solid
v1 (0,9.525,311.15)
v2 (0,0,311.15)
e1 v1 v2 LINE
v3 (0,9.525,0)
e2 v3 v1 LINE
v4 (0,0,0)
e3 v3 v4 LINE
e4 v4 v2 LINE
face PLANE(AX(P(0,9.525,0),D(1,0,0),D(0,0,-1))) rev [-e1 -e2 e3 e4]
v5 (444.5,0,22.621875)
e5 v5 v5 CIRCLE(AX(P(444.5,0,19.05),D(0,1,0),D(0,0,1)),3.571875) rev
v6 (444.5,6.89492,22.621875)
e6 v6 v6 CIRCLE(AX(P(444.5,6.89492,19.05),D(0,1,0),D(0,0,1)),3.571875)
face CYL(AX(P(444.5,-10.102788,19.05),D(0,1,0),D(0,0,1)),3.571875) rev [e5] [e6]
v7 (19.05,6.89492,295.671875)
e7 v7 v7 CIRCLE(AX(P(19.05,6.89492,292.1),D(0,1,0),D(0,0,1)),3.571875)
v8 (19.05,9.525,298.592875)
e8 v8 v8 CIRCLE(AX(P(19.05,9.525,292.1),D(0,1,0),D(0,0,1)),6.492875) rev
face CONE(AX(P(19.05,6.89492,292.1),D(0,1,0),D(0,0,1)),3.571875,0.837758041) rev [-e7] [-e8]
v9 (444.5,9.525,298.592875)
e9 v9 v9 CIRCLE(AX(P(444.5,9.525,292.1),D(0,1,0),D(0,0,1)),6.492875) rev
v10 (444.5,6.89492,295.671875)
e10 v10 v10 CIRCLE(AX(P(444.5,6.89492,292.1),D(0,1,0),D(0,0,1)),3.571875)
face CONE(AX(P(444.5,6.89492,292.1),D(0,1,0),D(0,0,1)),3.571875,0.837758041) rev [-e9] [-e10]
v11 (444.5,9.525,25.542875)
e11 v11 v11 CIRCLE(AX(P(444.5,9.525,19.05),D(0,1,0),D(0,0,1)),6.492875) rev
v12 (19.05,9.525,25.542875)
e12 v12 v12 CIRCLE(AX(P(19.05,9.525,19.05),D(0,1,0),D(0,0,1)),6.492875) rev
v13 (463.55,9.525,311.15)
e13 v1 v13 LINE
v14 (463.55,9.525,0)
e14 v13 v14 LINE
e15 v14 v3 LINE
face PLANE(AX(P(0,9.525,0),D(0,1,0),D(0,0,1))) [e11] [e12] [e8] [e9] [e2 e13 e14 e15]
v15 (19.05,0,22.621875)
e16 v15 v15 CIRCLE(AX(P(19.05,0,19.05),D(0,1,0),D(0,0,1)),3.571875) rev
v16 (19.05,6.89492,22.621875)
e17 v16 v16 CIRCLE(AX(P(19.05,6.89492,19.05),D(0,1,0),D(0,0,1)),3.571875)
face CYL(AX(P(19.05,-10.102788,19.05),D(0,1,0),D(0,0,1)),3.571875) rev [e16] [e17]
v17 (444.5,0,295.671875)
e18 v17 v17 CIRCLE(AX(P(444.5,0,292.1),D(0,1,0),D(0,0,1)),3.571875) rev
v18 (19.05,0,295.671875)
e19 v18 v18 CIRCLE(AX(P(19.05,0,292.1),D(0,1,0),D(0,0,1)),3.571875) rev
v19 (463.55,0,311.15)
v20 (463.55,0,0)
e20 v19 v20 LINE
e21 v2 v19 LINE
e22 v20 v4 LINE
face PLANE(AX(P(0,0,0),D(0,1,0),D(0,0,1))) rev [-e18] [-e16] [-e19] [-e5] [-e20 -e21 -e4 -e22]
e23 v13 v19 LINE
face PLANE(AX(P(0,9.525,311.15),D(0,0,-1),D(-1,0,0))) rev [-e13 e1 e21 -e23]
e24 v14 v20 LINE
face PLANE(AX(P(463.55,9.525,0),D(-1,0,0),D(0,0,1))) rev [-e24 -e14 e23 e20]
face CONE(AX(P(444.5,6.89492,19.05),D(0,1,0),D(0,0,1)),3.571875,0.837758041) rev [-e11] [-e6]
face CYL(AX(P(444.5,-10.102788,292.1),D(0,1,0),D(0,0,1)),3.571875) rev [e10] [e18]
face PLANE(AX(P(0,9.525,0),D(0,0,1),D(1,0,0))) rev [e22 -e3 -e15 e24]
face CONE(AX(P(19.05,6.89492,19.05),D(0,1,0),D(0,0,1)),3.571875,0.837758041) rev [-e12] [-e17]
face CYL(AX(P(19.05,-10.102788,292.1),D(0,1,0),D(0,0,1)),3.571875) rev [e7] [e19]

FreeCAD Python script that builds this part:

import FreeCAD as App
import Part
import Sketcher
from FreeCAD import Vector
Q = App.Units.Quantity


def edges_at(feature, points):
    """Names of the edges that pass closest to the given points."""
    edges = feature.Shape.Edges
    near = lambda p: min(range(len(edges)), key=lambda i: edges[i].distToShape(Part.Vertex(*p))[0])
    return sorted({f"Edge{near(p) + 1}" for p in points})


def add_polygon(sketch, points):
    """Adds a closed chain of lines whose ends are joined by coincident constraints."""
    first, n = sketch.GeometryCount, len(points)
    for a, b in zip(points, points[1:] + points[:1]):
        sketch.addGeometry(Part.LineSegment(App.Vector(*a, 0), App.Vector(*b, 0)), False)
    for i in range(n):
        sketch.addConstraint(Sketcher.Constraint("Coincident", first + i, 2, first + (i + 1) % n, 1))

doc = App.newDocument("Part")
body = doc.addObject("PartDesign::Body", "Body")

sketch1 = body.newObject("Sketcher::SketchObject", "Sketch")
sketch1.AttachmentSupport = (doc.getObject("XZ_Plane"), [""])
sketch1.MapMode = "FlatFace"
add_polygon(sketch1, [(0, 0), (0, 311.15), (463.55, 311.15), (463.55, 0)])
sketch1.addConstraint([
    Sketcher.Constraint("Vertical", 0),
    Sketcher.Constraint("Horizontal", 1),
    Sketcher.Constraint("Vertical", 2),
    Sketcher.Constraint("Horizontal", 3),
    Sketcher.Constraint("Coincident", 3, 2, -1, 1),
    Sketcher.Constraint("DistanceX", 1, 1, 1, 2, Q("18.25 in")),
    Sketcher.Constraint("DistanceY", 0, 1, 0, 2, Q("12.25 in")),
])
pad1 = body.newObject("PartDesign::Pad", "Pad")
pad1.Profile = sketch1
pad1.Length = Q("0.375 in")
pad1.Reversed = True

sketch2 = body.newObject("Sketcher::SketchObject", "Sketch001")
sketch2.AttachmentSupport = (doc.getObject("XZ_Plane"), [""])
sketch2.MapMode = "FlatFace"
sketch2.AttachmentOffset = App.Placement(Vector(0, 0, -0.375 * 25.4), App.Rotation())
sketch2.addGeometry([
    Part.Circle(Vector(444.5, 19.05, 0), Vector(0, 0, 1), 3.571875),
    Part.Circle(Vector(19.05, 19.05, 0), Vector(0, 0, 1), 3.571875),
    Part.Circle(Vector(444.5, 292.1, 0), Vector(0, 0, 1), 3.571875),
    Part.Circle(Vector(19.05, 292.1, 0), Vector(0, 0, 1), 3.571875),
], False)
sketch2.addConstraint([
    Sketcher.Constraint("Equal", 0, 1),
    Sketcher.Constraint("Equal", 1, 2),
    Sketcher.Constraint("Equal", 2, 3),
    Sketcher.Constraint("Horizontal", 0, 3, 1, 3),
    Sketcher.Constraint("Horizontal", 2, 3, 3, 3),
    Sketcher.Constraint("Vertical", 0, 3, 2, 3),
    Sketcher.Constraint("Vertical", 1, 3, 3, 3),
    Sketcher.Constraint("Diameter", 0, Q("0.28125 in")),
    Sketcher.Constraint("DistanceX", -1, 1, 0, 3, Q("17.5 in")),
    Sketcher.Constraint("DistanceY", -1, 1, 2, 3, Q("11.5 in")),
    Sketcher.Constraint("DistanceY", -1, 1, 0, 3, Q("0.75 in")),
    Sketcher.Constraint("DistanceX", -1, 1, 1, 3, Q("0.75 in")),
])
pocket1 = body.newObject("PartDesign::Pocket", "Pocket")
pocket1.Profile = sketch2
pocket1.Length = Q("0.375 in")
pocket1.Reversed = True
doc.recompute()

chamfer = body.newObject("PartDesign::Chamfer", "Chamfer")
chamfer.Base = (pocket1, edges_at(pocket1, [
    (440.928, 9.525, 19.05),
    (15.478, 9.525, 19.05),
    (440.928, 9.525, 292.1),
    (15.478, 9.525, 292.1),
]))
chamfer.ChamferType = "Two distances"
chamfer.Size = Q("0.115 in")
chamfer.Size2 = 2.63008

doc.recompute()
